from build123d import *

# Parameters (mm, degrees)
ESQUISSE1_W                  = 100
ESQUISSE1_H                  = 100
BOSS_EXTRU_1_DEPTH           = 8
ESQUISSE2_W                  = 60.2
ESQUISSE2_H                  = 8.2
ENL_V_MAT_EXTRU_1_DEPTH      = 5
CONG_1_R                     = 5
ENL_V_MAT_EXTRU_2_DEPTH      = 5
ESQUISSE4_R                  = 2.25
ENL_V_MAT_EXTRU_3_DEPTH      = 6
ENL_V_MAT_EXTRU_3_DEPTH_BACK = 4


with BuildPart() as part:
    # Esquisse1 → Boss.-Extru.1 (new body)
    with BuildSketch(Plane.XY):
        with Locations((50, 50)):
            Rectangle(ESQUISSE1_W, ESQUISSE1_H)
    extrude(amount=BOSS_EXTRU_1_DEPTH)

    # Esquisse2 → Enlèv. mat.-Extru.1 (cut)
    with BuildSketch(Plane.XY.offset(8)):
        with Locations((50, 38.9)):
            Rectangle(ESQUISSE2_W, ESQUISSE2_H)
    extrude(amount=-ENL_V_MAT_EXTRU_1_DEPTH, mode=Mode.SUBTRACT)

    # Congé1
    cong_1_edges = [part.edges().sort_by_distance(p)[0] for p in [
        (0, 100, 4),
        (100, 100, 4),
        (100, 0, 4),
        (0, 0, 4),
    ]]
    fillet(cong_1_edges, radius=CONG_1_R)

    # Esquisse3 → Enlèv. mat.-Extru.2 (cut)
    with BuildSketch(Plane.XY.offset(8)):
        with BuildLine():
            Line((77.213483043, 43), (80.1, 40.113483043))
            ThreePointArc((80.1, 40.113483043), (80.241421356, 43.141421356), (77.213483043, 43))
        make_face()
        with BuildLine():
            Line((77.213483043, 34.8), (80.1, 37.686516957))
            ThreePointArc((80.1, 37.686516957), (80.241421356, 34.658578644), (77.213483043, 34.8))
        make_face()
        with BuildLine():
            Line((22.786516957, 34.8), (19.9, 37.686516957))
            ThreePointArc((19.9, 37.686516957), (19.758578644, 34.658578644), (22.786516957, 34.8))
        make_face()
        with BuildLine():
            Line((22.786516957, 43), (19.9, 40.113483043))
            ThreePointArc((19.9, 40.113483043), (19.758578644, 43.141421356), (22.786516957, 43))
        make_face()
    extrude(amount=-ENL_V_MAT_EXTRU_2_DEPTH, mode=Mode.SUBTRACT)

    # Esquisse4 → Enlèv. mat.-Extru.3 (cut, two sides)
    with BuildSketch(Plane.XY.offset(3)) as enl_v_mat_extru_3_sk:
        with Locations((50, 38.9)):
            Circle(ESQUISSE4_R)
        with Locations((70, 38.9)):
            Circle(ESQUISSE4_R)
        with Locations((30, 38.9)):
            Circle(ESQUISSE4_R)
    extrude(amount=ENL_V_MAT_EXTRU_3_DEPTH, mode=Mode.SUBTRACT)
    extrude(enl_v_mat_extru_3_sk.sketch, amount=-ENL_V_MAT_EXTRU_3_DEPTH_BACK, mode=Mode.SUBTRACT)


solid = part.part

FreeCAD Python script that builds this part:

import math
import FreeCAD as App
import Part
import Sketcher

V = App.Vector
Q = App.Units.Quantity


def edges_at(feature, points):
    """Names of the edges that pass closest to the given points."""
    edges = feature.Shape.Edges
    near = lambda p: min(range(len(edges)), key=lambda i: edges[i].distToShape(Part.Vertex(*p))[0])
    return sorted({f"Edge{near(p) + 1}" for p in points})


def add_polygon(sketch, points):
    """Adds a closed chain of lines whose ends are joined by coincident constraints."""
    first, n = sketch.GeometryCount, len(points)
    for a, b in zip(points, points[1:] + points[:1]):
        sketch.addGeometry(Part.LineSegment(App.Vector(*a, 0), App.Vector(*b, 0)), False)
    for i in range(n):
        sketch.addConstraint(Sketcher.Constraint("Coincident", first + i, 2, first + (i + 1) % n, 1))

doc = App.newDocument("Part")
body = doc.addObject("PartDesign::Body", "Body")

sketch1 = doc.addObject("Sketcher::SketchObject", "Sketch")
body.addObject(sketch1)
sketch1.AttachmentSupport = (doc.XY_Plane, [""])
sketch1.MapMode = "FlatFace"
add_polygon(sketch1, [(0, 100), (0, 0), (100, 0), (100, 100)])
sketch1.addConstraint([
    Sketcher.Constraint("Vertical", 0),
    Sketcher.Constraint("Horizontal", 1),
    Sketcher.Constraint("Vertical", 2),
    Sketcher.Constraint("Horizontal", 3),
    Sketcher.Constraint("Coincident", 0, 2, -1, 1),
    Sketcher.Constraint("Equal", 3, 0),
    Sketcher.Constraint("DistanceX", 1, 1, 1, 2, Q("100 mm")),
])
pad1 = doc.addObject("PartDesign::Pad", "Pad")
body.addObject(pad1)
pad1.Profile = sketch1
pad1.Length = 8

sketch2 = doc.addObject("Sketcher::SketchObject", "Sketch001")
body.addObject(sketch2)
sketch2.AttachmentSupport = (doc.XY_Plane, [""])
sketch2.MapMode = "FlatFace"
sketch2.AttachmentOffset = App.Placement(V(0, 0, 8), App.Rotation())
add_polygon(sketch2, [(20, 43), (20, 35), (80, 35), (80, 43)])
sketch2.addConstraint([
    Sketcher.Constraint("Vertical", 0),
    Sketcher.Constraint("Horizontal", 1),
    Sketcher.Constraint("Vertical", 2),
    Sketcher.Constraint("Horizontal", 3),
    Sketcher.Constraint("DistanceX", 1, 1, 1, 2, Q("60.2 mm")),
    Sketcher.Constraint("DistanceY", 0, 2, 0, 1, Q("8.2 mm")),
    Sketcher.Constraint("DistanceY", -1, 1, 2, 2, Q("43 mm")),
    Sketcher.Constraint("DistanceX", -1, 1, 0, 2, Q("19.9 mm")),
])
pocket1 = doc.addObject("PartDesign::Pocket", "Pocket")
body.addObject(pocket1)
pocket1.Profile = sketch2
pocket1.Length = 5
doc.recompute()

fillet = doc.addObject("PartDesign::Fillet", "Fillet")
body.addObject(fillet)
fillet.Base = (pocket1, edges_at(pocket1, [
    (0, 100, 4),
    (100, 100, 4),
    (100, 0, 4),
    (0, 0, 4),
]))
fillet.Radius = 5

sketch3 = doc.addObject("Sketcher::SketchObject", "Sketch002")
body.addObject(sketch3)
sketch3.AttachmentSupport = (doc.XY_Plane, [""])
sketch3.MapMode = "FlatFace"
sketch3.AttachmentOffset = App.Placement(V(0, 0, 8), App.Rotation())
sketch3.addGeometry([
    Part.LineSegment(V(77.2, 43, 0), V(80.1, 40.1, 0)),
    Part.ArcOfCircle(Part.Circle(V(78.8, 41.7, 0), V(0, 0, 1), 2), math.radians(-50), math.radians(140)),
    Part.LineSegment(V(80.1, 37.7, 0), V(77.2, 34.8, 0)),
    Part.ArcOfCircle(Part.Circle(V(78.8, 36.1, 0), V(0, 0, 1), 2), math.radians(-140), math.radians(50)),
    Part.LineSegment(V(22.8, 34.8, 0), V(19.9, 37.7, 0)),
    Part.ArcOfCircle(Part.Circle(V(21.2, 36.1, 0), V(0, 0, 1), 2), math.radians(130), math.radians(320)),
    Part.LineSegment(V(19.9, 40.1, 0), V(22.8, 43, 0)),
    Part.ArcOfCircle(Part.Circle(V(21.2, 41.7, 0), V(0, 0, 1), 2), math.radians(40), math.radians(230)),
], False)
sketch3.addConstraint([
    Sketcher.Constraint("Coincident", 0, 1, 1, 2),
    Sketcher.Constraint("Coincident", 1, 1, 0, 2),
    Sketcher.Constraint("Coincident", 2, 1, 3, 2),
    Sketcher.Constraint("Coincident", 3, 1, 2, 2),
    Sketcher.Constraint("Coincident", 4, 1, 5, 2),
    Sketcher.Constraint("Coincident", 5, 1, 4, 2),
    Sketcher.Constraint("Coincident", 6, 1, 7, 2),
    Sketcher.Constraint("Coincident", 7, 1, 6, 2),
    Sketcher.Constraint("Equal", 1, 3),
    Sketcher.Constraint("Equal", 3, 5),
    Sketcher.Constraint("Equal", 5, 7),
    Sketcher.Constraint("Perpendicular", 0, 2),
    Sketcher.Constraint("Perpendicular", 2, 4),
    Sketcher.Constraint("Perpendicular", 4, 6),
    Sketcher.Constraint("Horizontal", 3, 3, 5, 3),
    Sketcher.Constraint("Horizontal", 1, 3, 7, 3),
    Sketcher.Constraint("Horizontal", 3, 1, 4, 1),
    Sketcher.Constraint("Horizontal", 2, 1, 5, 1),
    Sketcher.Constraint("Horizontal", 1, 1, 6, 1),
    Sketcher.Constraint("Vertical", 1, 3, 3, 3),
    Sketcher.Constraint("Vertical", 5, 3, 7, 3),
    Sketcher.Constraint("Vertical", 1, 1, 2, 1),
    Sketcher.Constraint("Radius", 1, Q("2.05 mm")),
    Sketcher.Constraint("DistanceY", -1, 1, 0, 1, Q("43 mm")),
    Sketcher.Constraint("DistanceX", -1, 1, 1, 1, Q("80.1 mm")),
    Sketcher.Constraint("DistanceY", -1, 1, 3, 1, Q("34.8 mm")),
    Sketcher.Constraint("DistanceX", -1, 1, 5, 1, Q("19.9 mm")),
    Sketcher.Constraint("Distance", 0, Q("4.082151 mm")),
])
pocket2 = doc.addObject("PartDesign::Pocket", "Pocket001")
body.addObject(pocket2)
pocket2.Profile = sketch3
pocket2.Length = 5

sketch4 = doc.addObject("Sketcher::SketchObject", "Sketch003")
body.addObject(sketch4)
sketch4.AttachmentSupport = (doc.XY_Plane, [""])
sketch4.MapMode = "FlatFace"
sketch4.AttachmentOffset = App.Placement(V(0, 0, 3), App.Rotation())
sketch4.addGeometry([
    Part.Circle(V(50, 38.9, 0), V(0, 0, 1), 2.2),
    Part.Circle(V(70, 38.9, 0), V(0, 0, 1), 2.2),
    Part.Circle(V(30, 38.9, 0), V(0, 0, 1), 2.2),
], False)
sketch4.addConstraint([
    Sketcher.Constraint("Equal", 0, 1),
    Sketcher.Constraint("Equal", 1, 2),
    Sketcher.Constraint("Horizontal", 0, 3, 1, 3),
    Sketcher.Constraint("Horizontal", 1, 3, 2, 3),
    Sketcher.Constraint("Diameter", 0, Q("4.5 mm")),
    Sketcher.Constraint("DistanceX", -1, 1, 0, 3, Q("50 mm")),
    Sketcher.Constraint("DistanceX", -1, 1, 1, 3, Q("70 mm")),
    Sketcher.Constraint("DistanceX", -1, 1, 2, 3, Q("30 mm")),
    Sketcher.Constraint("DistanceY", -1, 1, 0, 3, Q("38.9 mm")),
])
pocket3 = doc.addObject("PartDesign::Pocket", "Pocket002")
body.addObject(pocket3)
pocket3.Profile = sketch4
pocket3.Type = "ThroughAll"
pocket3.Midplane = True

doc.recompute()
